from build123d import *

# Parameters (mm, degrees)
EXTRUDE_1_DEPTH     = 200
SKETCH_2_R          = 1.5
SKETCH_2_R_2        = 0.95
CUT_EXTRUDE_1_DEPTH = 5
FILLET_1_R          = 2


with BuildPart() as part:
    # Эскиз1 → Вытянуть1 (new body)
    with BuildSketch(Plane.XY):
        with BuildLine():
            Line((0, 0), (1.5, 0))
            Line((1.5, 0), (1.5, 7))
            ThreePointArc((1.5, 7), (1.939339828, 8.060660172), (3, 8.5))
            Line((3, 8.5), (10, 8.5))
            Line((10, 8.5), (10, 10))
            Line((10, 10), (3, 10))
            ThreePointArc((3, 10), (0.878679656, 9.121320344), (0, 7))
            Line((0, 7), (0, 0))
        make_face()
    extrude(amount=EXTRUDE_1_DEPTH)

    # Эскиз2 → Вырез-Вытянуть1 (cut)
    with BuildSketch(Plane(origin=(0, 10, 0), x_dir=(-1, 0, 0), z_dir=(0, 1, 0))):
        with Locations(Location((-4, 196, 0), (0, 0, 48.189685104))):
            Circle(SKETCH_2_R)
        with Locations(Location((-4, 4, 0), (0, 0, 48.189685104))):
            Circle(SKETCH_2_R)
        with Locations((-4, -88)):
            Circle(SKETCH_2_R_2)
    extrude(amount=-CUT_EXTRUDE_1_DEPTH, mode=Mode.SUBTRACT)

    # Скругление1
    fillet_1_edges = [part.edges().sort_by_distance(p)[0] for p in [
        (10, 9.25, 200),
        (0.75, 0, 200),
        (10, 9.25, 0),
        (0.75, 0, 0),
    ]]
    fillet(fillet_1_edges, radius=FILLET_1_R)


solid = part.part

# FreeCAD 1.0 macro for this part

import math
import FreeCAD as App
import Part
import Sketcher
Q = App.Units.Quantity


def edges_at(feature, points):
    """Names of the edges that pass closest to the given points."""
    edges = feature.Shape.Edges
    near = lambda p: min(range(len(edges)), key=lambda i: edges[i].distToShape(Part.Vertex(*p))[0])
    return sorted({f"Edge{near(p) + 1}" for p in points})

doc = App.newDocument("Part")
params = doc.addObject("Spreadsheet::Sheet", "Params")
for row, (alias, value) in enumerate([
    ("sketch1_radius", "3 mm"),
    ("sketch1_radius2", "1.5 mm"),
    ("sketch1_width", "7 mm"),
    ("pad1_length", "200 mm"),
    ("sketch2_diameter", "3 mm"),
    ("sketch2_diameter2", "1.9 mm"),
    ("pocket1_length", "5 mm"),
    ("fillet_radius", "2 mm"),
], start=1):
    params.set(f"A{row}", alias)
    params.set(f"B{row}", "=" + value)
    params.setAlias(f"B{row}", alias)

body = doc.addObject("PartDesign::Body", "Body")

sketch1 = body.newObject("Sketcher::SketchObject", "Sketch")
sketch1.AttachmentSupport = (doc.getObject("XY_Plane"), [""])
sketch1.MapMode = "FlatFace"
sketch1.addGeometry(Part.LineSegment(App.Vector(0, 0, 0), App.Vector(1.5, 0, 0)), False)
sketch1.addGeometry(Part.LineSegment(App.Vector(1.5, 0, 0), App.Vector(1.5, 7, 0)), False)
sketch1.addGeometry(Part.ArcOfCircle(Part.Circle(App.Vector(3, 7, 0), App.Vector(0, 0, 1), 1.5), math.radians(90), math.radians(180)), False)
sketch1.addGeometry(Part.LineSegment(App.Vector(3, 8.5, 0), App.Vector(10, 8.5, 0)), False)
sketch1.addGeometry(Part.LineSegment(App.Vector(10, 8.5, 0), App.Vector(10, 10, 0)), False)
sketch1.addGeometry(Part.LineSegment(App.Vector(10, 10, 0), App.Vector(3, 10, 0)), False)
sketch1.addGeometry(Part.ArcOfCircle(Part.Circle(App.Vector(3, 7, 0), App.Vector(0, 0, 1), 3), math.radians(90), math.radians(180)), False)
sketch1.addGeometry(Part.LineSegment(App.Vector(0, 7, 0), App.Vector(0, 0, 0)), False)
sketch1.addConstraint(Sketcher.Constraint("Coincident", 0, 2, 1, 1))
sketch1.addConstraint(Sketcher.Constraint("Tangent", 1, 2, 2, 2))
sketch1.addConstraint(Sketcher.Constraint("Tangent", 2, 1, 3, 1))
sketch1.addConstraint(Sketcher.Constraint("Coincident", 3, 2, 4, 1))
sketch1.addConstraint(Sketcher.Constraint("Coincident", 4, 2, 5, 1))
sketch1.addConstraint(Sketcher.Constraint("Tangent", 5, 2, 6, 1))
sketch1.addConstraint(Sketcher.Constraint("Tangent", 6, 2, 7, 1))
sketch1.addConstraint(Sketcher.Constraint("Coincident", 7, 2, 0, 1))
sketch1.addConstraint(Sketcher.Constraint("Horizontal", 0))
sketch1.addConstraint(Sketcher.Constraint("Vertical", 1))
sketch1.addConstraint(Sketcher.Constraint("Horizontal", 3))
sketch1.addConstraint(Sketcher.Constraint("Vertical", 4))
sketch1.addConstraint(Sketcher.Constraint("Horizontal", 5))
sketch1.addConstraint(Sketcher.Constraint("Vertical", 7))
sketch1.addConstraint(Sketcher.Constraint("Coincident", 7, 2, -1, 1))
sketch1.addConstraint(Sketcher.Constraint("Coincident", 6, 3, 2, 3))
sketch1.addConstraint(Sketcher.Constraint("Equal", 5, 1))
sketch1.addConstraint(Sketcher.Constraint("Radius", 6, Q("3 mm")))
sketch1.addConstraint(Sketcher.Constraint("Radius", 2, Q("1.5 mm")))
sketch1.addConstraint(Sketcher.Constraint("DistanceX", 3, 1, 3, 2, Q("7 mm")))
sketch1.setExpression("Constraints[17]", "Params.sketch1_radius")
sketch1.setExpression("Constraints[18]", "Params.sketch1_radius2")
sketch1.setExpression("Constraints[19]", "Params.sketch1_width")
pad1 = body.newObject("PartDesign::Pad", "Pad")
pad1.Profile = sketch1
pad1.setExpression("Length", "Params.pad1_length")

sketch2 = body.newObject("Sketcher::SketchObject", "Sketch001")
sketch2.AttachmentSupport = (doc.getObject("XZ_Plane"), [""])
sketch2.MapMode = "FlatFace"
sketch2.AttachmentOffset = App.Placement(App.Vector(0, 0, -10), App.Rotation())
sketch2.addGeometry(Part.Circle(App.Vector(4, 196, 0), App.Vector(0, 0, 1), 1.5), False)
sketch2.addGeometry(Part.Circle(App.Vector(4, 4, 0), App.Vector(0, 0, 1), 1.5), False)
sketch2.addGeometry(Part.Circle(App.Vector(4, -88, 0), App.Vector(0, 0, 1), 0.9), False)
sketch2.addConstraint(Sketcher.Constraint("Equal", 0, 1))
sketch2.addConstraint(Sketcher.Constraint("Vertical", 0, 3, 1, 3))
sketch2.addConstraint(Sketcher.Constraint("Vertical", 1, 3, 2, 3))
sketch2.addConstraint(Sketcher.Constraint("Diameter", 0, Q("3 mm")))
sketch2.addConstraint(Sketcher.Constraint("Diameter", 2, Q("1.9 mm")))
sketch2.addConstraint(Sketcher.Constraint("DistanceX", -1, 1, 0, 3, Q("4 mm")))
sketch2.addConstraint(Sketcher.Constraint("DistanceY", -1, 1, 0, 3, Q("196 mm")))
sketch2.addConstraint(Sketcher.Constraint("DistanceY", -1, 1, 1, 3, Q("4 mm")))
sketch2.addConstraint(Sketcher.Constraint("DistanceY", 2, 3, -1, 1, Q("88 mm")))
sketch2.setExpression("Constraints[3]", "Params.sketch2_diameter")
sketch2.setExpression("Constraints[4]", "Params.sketch2_diameter2")
pocket1 = body.newObject("PartDesign::Pocket", "Pocket")
pocket1.Profile = sketch2
pocket1.setExpression("Length", "Params.pocket1_length")
pocket1.Reversed = True
doc.recompute()

fillet = body.newObject("PartDesign::Fillet", "Fillet")
fillet.Base = (pocket1, edges_at(pocket1, [
    (10, 9.25, 200),
    (0.75, 0, 200),
    (10, 9.25, 0),
    (0.75, 0, 0),
]))
fillet.setExpression("Radius", "Params.fillet_radius")

doc.recompute()
